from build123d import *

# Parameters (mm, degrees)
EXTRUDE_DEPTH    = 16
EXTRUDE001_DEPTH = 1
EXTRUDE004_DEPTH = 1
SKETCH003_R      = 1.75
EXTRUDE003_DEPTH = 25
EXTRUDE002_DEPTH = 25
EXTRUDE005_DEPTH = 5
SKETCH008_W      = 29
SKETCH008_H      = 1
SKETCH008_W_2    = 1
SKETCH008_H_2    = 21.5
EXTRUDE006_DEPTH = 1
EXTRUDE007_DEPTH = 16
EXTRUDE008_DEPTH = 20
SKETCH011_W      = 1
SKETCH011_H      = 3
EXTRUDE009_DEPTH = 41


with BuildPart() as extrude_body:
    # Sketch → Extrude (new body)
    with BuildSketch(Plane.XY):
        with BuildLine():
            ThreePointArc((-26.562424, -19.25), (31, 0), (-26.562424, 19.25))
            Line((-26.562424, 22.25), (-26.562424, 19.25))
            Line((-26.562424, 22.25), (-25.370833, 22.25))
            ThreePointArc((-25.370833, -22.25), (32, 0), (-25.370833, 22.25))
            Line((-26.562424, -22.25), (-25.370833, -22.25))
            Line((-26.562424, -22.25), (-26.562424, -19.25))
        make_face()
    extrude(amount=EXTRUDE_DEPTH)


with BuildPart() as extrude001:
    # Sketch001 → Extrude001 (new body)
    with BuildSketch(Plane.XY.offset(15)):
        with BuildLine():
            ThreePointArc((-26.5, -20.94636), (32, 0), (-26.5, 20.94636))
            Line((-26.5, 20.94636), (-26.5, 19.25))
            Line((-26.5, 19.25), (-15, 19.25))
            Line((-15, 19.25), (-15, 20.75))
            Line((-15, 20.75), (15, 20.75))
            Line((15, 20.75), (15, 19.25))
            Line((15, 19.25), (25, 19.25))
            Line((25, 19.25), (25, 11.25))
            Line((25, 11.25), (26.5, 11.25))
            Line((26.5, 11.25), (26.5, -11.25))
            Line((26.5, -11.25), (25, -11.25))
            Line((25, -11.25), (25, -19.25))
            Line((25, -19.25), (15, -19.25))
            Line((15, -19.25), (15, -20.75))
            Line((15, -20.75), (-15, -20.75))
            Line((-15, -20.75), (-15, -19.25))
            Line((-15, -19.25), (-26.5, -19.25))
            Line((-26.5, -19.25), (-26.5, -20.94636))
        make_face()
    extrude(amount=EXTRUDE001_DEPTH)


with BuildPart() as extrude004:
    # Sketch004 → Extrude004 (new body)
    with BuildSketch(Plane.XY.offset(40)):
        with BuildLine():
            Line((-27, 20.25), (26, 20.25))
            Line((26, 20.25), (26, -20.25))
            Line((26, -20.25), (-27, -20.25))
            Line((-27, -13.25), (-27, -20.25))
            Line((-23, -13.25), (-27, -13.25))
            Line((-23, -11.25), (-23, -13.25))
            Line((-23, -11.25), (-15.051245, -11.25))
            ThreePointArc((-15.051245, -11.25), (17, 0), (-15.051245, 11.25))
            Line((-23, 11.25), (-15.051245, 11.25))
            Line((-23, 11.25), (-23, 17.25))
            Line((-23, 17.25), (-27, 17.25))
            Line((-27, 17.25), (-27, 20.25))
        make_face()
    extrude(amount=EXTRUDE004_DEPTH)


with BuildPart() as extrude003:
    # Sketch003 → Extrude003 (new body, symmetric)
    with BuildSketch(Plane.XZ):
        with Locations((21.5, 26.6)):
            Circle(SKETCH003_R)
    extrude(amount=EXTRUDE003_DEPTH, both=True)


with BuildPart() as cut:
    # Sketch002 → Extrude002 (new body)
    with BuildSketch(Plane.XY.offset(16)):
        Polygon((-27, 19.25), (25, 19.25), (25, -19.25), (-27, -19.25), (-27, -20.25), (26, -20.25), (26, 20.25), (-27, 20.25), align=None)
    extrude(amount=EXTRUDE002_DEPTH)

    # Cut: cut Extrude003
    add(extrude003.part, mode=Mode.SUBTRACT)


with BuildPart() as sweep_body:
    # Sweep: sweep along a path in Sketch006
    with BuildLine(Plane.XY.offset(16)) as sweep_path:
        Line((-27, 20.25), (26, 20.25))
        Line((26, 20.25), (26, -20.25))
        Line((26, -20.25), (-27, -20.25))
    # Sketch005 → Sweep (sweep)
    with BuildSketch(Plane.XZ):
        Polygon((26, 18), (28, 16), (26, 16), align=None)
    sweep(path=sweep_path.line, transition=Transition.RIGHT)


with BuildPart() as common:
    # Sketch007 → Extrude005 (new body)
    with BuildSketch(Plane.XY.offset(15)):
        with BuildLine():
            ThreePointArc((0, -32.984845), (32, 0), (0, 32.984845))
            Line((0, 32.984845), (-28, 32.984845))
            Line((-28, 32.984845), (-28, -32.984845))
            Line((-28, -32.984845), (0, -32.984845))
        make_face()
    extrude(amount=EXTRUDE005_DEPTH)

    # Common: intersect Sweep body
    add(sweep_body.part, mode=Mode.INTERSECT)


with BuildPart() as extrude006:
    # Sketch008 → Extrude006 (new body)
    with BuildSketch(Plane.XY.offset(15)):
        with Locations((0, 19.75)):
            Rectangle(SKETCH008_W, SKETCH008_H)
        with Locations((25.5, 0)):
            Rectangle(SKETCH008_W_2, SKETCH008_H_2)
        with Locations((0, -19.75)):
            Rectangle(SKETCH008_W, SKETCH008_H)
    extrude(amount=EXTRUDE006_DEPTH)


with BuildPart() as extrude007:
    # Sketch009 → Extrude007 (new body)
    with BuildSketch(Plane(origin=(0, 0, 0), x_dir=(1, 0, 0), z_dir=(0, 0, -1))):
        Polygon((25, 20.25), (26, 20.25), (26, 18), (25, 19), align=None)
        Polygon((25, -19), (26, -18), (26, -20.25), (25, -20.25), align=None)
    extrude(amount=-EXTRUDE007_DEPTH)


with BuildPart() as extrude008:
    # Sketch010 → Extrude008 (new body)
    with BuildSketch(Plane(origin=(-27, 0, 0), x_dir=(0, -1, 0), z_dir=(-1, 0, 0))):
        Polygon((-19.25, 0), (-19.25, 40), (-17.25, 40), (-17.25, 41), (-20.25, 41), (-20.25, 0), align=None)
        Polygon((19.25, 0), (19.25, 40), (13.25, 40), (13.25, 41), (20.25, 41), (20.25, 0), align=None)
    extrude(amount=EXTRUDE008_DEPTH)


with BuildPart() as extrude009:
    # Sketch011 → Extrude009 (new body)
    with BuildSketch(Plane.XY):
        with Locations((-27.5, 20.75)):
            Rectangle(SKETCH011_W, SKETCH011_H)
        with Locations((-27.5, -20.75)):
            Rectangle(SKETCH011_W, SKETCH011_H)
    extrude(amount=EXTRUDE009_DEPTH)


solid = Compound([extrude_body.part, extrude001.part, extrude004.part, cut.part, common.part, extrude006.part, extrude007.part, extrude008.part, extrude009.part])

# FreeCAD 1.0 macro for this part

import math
import FreeCAD as App
import Part
import Sketcher

V = App.Vector

doc = App.newDocument("Part")
params = doc.addObject("Spreadsheet::Sheet", "Params")
for row, (alias, value) in enumerate([
    ("sketch1_radius", "32 mm"),
    ("sketch1_radius2", "33 mm"),
    ("sketch1_height", "3 mm"),
    ("pad1_length", "16 mm"),
    ("sketch2_radius", "33 mm"),
    ("sketch2_width", "30 mm"),
    ("sketch2_width2", "10 mm"),
    ("sketch2_height", "8 mm"),
    ("sketch2_width3", "11.5 mm"),
    ("pad2_length", "1 mm"),
    ("sketch3_radius", "18 mm"),
    ("sketch3_width", "53 mm"),
    ("sketch3_width2", "4 mm"),
    ("sketch3_height", "3 mm"),
    ("sketch3_height2", "6 mm"),
    ("pad3_length", "1 mm"),
    ("sketch4_diameter", "3.5 mm"),
    ("pad4_length", "50 mm"),
    ("sketch5_width", "52 mm"),
    ("sketch5_width2", "53 mm"),
    ("sketch5_height", "1 mm"),
    ("sketch5_height2", "38.5 mm"),
    ("pad5_length", "25 mm"),
    ("sketch6_width", "2 mm"),
    ("sketch7_width", "53 mm"),
    ("sketch7_height", "40.5 mm"),
    ("sketch8_radius", "33 mm"),
    ("sketch8_width", "28 mm"),
    ("pad6_length", "5 mm"),
    ("sketch9_width", "29 mm"),
    ("sketch9_width2", "1 mm"),
    ("sketch9_height", "21.5 mm"),
    ("pad7_length", "1 mm"),
    ("sketch10_width", "1 mm"),
    ("sketch10_height", "1.25 mm"),
    ("pad8_length", "16 mm"),
    ("sketch11_width", "2 mm"),
    ("sketch11_width2", "3 mm"),
    ("sketch11_width3", "7 mm"),
    ("sketch11_height", "40 mm"),
    ("pad9_length", "20 mm"),
    ("sketch12_width", "1 mm"),
    ("sketch12_height", "3 mm"),
    ("pad10_length", "41 mm"),
], start=1):
    params.set(f"A{row}", alias)
    params.set(f"B{row}", "=" + value)
    params.setAlias(f"B{row}", alias)

body = doc.addObject("PartDesign::Body", "Body")

# Sketch on XY plane
sketch1 = body.newObject("Sketcher::SketchObject", "Sketch")
sketch1.AttachmentSupport = (doc.getObject("XY_Plane"), [""])
sketch1.MapMode = "FlatFace"
sketch1.addGeometry(Part.ArcOfCircle(Part.Circle(V(-1, 0, 0), V(0, 0, 1), 32), math.radians(-143), math.radians(143)), False)
sketch1.addGeometry(Part.LineSegment(V(-26.6, -19.2, 0), V(-26.6, -22.2, 0)), False)
sketch1.addGeometry(Part.LineSegment(V(-26.6, -22.2, 0), V(-25.4, -22.2, 0)), False)
sketch1.addGeometry(Part.ArcOfCircle(Part.Circle(V(-1, 0, 0), V(0, 0, 1), 33), math.radians(-138), math.radians(138)), False)
sketch1.addGeometry(Part.LineSegment(V(-25.4, 22.2, 0), V(-26.6, 22.2, 0)), False)
sketch1.addGeometry(Part.LineSegment(V(-26.6, 22.2, 0), V(-26.6, 19.2, 0)), False)
sketch1.addConstraint(Sketcher.Constraint("Coincident", 0, 1, 1, 1))
sketch1.addConstraint(Sketcher.Constraint("Coincident", 1, 2, 2, 1))
sketch1.addConstraint(Sketcher.Constraint("Coincident", 2, 2, 3, 1))
sketch1.addConstraint(Sketcher.Constraint("Coincident", 3, 2, 4, 1))
sketch1.addConstraint(Sketcher.Constraint("Coincident", 4, 2, 5, 1))
sketch1.addConstraint(Sketcher.Constraint("Coincident", 5, 2, 0, 2))
sketch1.addConstraint(Sketcher.Constraint("Vertical", 1))
sketch1.addConstraint(Sketcher.Constraint("Horizontal", 2))
sketch1.addConstraint(Sketcher.Constraint("Horizontal", 4))
sketch1.addConstraint(Sketcher.Constraint("Vertical", 5))
sketch1.addConstraint(Sketcher.Constraint("Coincident", 3, 3, 0, 3))
sketch1.addConstraint(Sketcher.Constraint("Symmetric", 2, 2, 3, 2, -1))
sketch1.addConstraint(Sketcher.Constraint("Vertical", 1, 2, 4, 2))
sketch1.addConstraint(Sketcher.Constraint("Radius", 0, 32.0))
sketch1.addConstraint(Sketcher.Constraint("Radius", 3, 33.0))
sketch1.addConstraint(Sketcher.Constraint("DistanceY", 1, 2, 1, 1, 3.0))
sketch1.addConstraint(Sketcher.Constraint("DistanceX", 0, 3, -1, 1, 1.0))
sketch1.addConstraint(Sketcher.Constraint("DistanceY", 0, 1, 3, 2, 41.5))
sketch1.setExpression("Constraints[13]", "Params.sketch1_radius")
sketch1.setExpression("Constraints[14]", "Params.sketch1_radius2")
sketch1.setExpression("Constraints[15]", "Params.sketch1_height")
pad1 = body.newObject("PartDesign::Pad", "Pad")
pad1.Profile = sketch1
pad1.setExpression("Length", "Params.pad1_length")
body2 = doc.addObject("PartDesign::Body", "Body001")

# Sketch on XY plane
sketch2 = body2.newObject("Sketcher::SketchObject", "Sketch001")
sketch2.AttachmentSupport = (doc.getObject("XY_Plane001"), [""])
sketch2.MapMode = "FlatFace"
sketch2.AttachmentOffset = App.Placement(V(0, 0, 15), App.Rotation())
sketch2.addGeometry(Part.ArcOfCircle(Part.Circle(V(-1, 0, 0), V(0, 0, 1), 33), math.radians(-141), math.radians(141)), False)
sketch2.addGeometry(Part.LineSegment(V(-26.5, 20.9, 0), V(-26.5, 19.2, 0)), False)
sketch2.addGeometry(Part.LineSegment(V(-26.5, 19.2, 0), V(-15, 19.2, 0)), False)
sketch2.addGeometry(Part.LineSegment(V(-15, 19.2, 0), V(-15, 20.8, 0)), False)
sketch2.addGeometry(Part.LineSegment(V(-15, 20.8, 0), V(15, 20.8, 0)), False)
sketch2.addGeometry(Part.LineSegment(V(15, 20.8, 0), V(15, 19.2, 0)), False)
sketch2.addGeometry(Part.LineSegment(V(15, 19.2, 0), V(25, 19.2, 0)), False)
sketch2.addGeometry(Part.LineSegment(V(25, 19.2, 0), V(25, 11.2, 0)), False)
sketch2.addGeometry(Part.LineSegment(V(25, 11.2, 0), V(26.5, 11.2, 0)), False)
sketch2.addGeometry(Part.LineSegment(V(26.5, 11.2, 0), V(26.5, -11.2, 0)), False)
sketch2.addGeometry(Part.LineSegment(V(26.5, -11.2, 0), V(25, -11.2, 0)), False)
sketch2.addGeometry(Part.LineSegment(V(25, -11.2, 0), V(25, -19.2, 0)), False)
sketch2.addGeometry(Part.LineSegment(V(25, -19.2, 0), V(15, -19.2, 0)), False)
sketch2.addGeometry(Part.LineSegment(V(15, -19.2, 0), V(15, -20.8, 0)), False)
sketch2.addGeometry(Part.LineSegment(V(15, -20.8, 0), V(-15, -20.8, 0)), False)
sketch2.addGeometry(Part.LineSegment(V(-15, -20.8, 0), V(-15, -19.2, 0)), False)
sketch2.addGeometry(Part.LineSegment(V(-15, -19.2, 0), V(-26.5, -19.2, 0)), False)
sketch2.addGeometry(Part.LineSegment(V(-26.5, -19.2, 0), V(-26.5, -20.9, 0)), False)
sketch2.addConstraint(Sketcher.Constraint("Coincident", 0, 2, 1, 1))
sketch2.addConstraint(Sketcher.Constraint("Coincident", 1, 2, 2, 1))
sketch2.addConstraint(Sketcher.Constraint("Coincident", 2, 2, 3, 1))
sketch2.addConstraint(Sketcher.Constraint("Coincident", 3, 2, 4, 1))
sketch2.addConstraint(Sketcher.Constraint("Coincident", 4, 2, 5, 1))
sketch2.addConstraint(Sketcher.Constraint("Coincident", 5, 2, 6, 1))
sketch2.addConstraint(Sketcher.Constraint("Coincident", 6, 2, 7, 1))
sketch2.addConstraint(Sketcher.Constraint("Coincident", 7, 2, 8, 1))
sketch2.addConstraint(Sketcher.Constraint("Coincident", 8, 2, 9, 1))
sketch2.addConstraint(Sketcher.Constraint("Coincident", 9, 2, 10, 1))
sketch2.addConstraint(Sketcher.Constraint("Coincident", 10, 2, 11, 1))
sketch2.addConstraint(Sketcher.Constraint("Coincident", 11, 2, 12, 1))
sketch2.addConstraint(Sketcher.Constraint("Coincident", 12, 2, 13, 1))
sketch2.addConstraint(Sketcher.Constraint("Coincident", 13, 2, 14, 1))
sketch2.addConstraint(Sketcher.Constraint("Coincident", 14, 2, 15, 1))
sketch2.addConstraint(Sketcher.Constraint("Coincident", 15, 2, 16, 1))
sketch2.addConstraint(Sketcher.Constraint("Coincident", 16, 2, 17, 1))
sketch2.addConstraint(Sketcher.Constraint("Coincident", 17, 2, 0, 1))
sketch2.addConstraint(Sketcher.Constraint("Vertical", 1))
sketch2.addConstraint(Sketcher.Constraint("Horizontal", 2))
sketch2.addConstraint(Sketcher.Constraint("Vertical", 3))
sketch2.addConstraint(Sketcher.Constraint("Horizontal", 4))
sketch2.addConstraint(Sketcher.Constraint("Vertical", 5))
sketch2.addConstraint(Sketcher.Constraint("Horizontal", 6))
sketch2.addConstraint(Sketcher.Constraint("Vertical", 7))
sketch2.addConstraint(Sketcher.Constraint("Horizontal", 8))
sketch2.addConstraint(Sketcher.Constraint("Vertical", 9))
sketch2.addConstraint(Sketcher.Constraint("Horizontal", 10))
sketch2.addConstraint(Sketcher.Constraint("Vertical", 11))
sketch2.addConstraint(Sketcher.Constraint("Horizontal", 12))
sketch2.addConstraint(Sketcher.Constraint("Vertical", 13))
sketch2.addConstraint(Sketcher.Constraint("Horizontal", 14))
sketch2.addConstraint(Sketcher.Constraint("Vertical", 15))
sketch2.addConstraint(Sketcher.Constraint("Horizontal", 16))
sketch2.addConstraint(Sketcher.Constraint("Vertical", 17))
sketch2.addConstraint(Sketcher.Constraint("Symmetric", 2, 2, 12, 2, -1, 1))
sketch2.addConstraint(Sketcher.Constraint("Symmetric", 4, 2, 14, 2, -1, 1))
sketch2.addConstraint(Sketcher.Constraint("Symmetric", 2, 2, 5, 2, -2))
sketch2.addConstraint(Sketcher.Constraint("Symmetric", 7, 2, 10, 2, -1))
sketch2.addConstraint(Sketcher.Constraint("Symmetric", 1, 2, 16, 2, -1))
sketch2.addConstraint(Sketcher.Constraint("PointOnObject", 0, 3, -1))
sketch2.addConstraint(Sketcher.Constraint("Equal", 10, 3))
sketch2.addConstraint(Sketcher.Constraint("Radius", 0, 33.0))
sketch2.addConstraint(Sketcher.Constraint("DistanceX", 4, 1, 4, 2, 30.0))
sketch2.addConstraint(Sketcher.Constraint("DistanceX", 6, 1, 6, 2, 10.0))
sketch2.addConstraint(Sketcher.Constraint("DistanceY", 7, 2, 7, 1, 8.0))
sketch2.addConstraint(Sketcher.Constraint("DistanceX", 2, 1, 2, 2, 11.5))
sketch2.addConstraint(Sketcher.Constraint("DistanceX", 8, 1, 8, 2, 1.5))
sketch2.addConstraint(Sketcher.Constraint("DistanceY", 9, 2, 9, 1, 22.5))
sketch2.addConstraint(Sketcher.Constraint("DistanceX", 0, 3, -1, 1, 1.0))
sketch2.setExpression("Constraints[42]", "Params.sketch2_radius")
sketch2.setExpression("Constraints[43]", "Params.sketch2_width")
sketch2.setExpression("Constraints[44]", "Params.sketch2_width2")
sketch2.setExpression("Constraints[45]", "Params.sketch2_height")
sketch2.setExpression("Constraints[46]", "Params.sketch2_width3")
pad2 = body2.newObject("PartDesign::Pad", "Pad001")
pad2.Profile = sketch2
pad2.setExpression("Length", "Params.pad2_length")
body3 = doc.addObject("PartDesign::Body", "Body002")

# Sketch on XY plane
sketch3 = body3.newObject("Sketcher::SketchObject", "Sketch002")
sketch3.AttachmentSupport = (doc.getObject("XY_Plane002"), [""])
sketch3.MapMode = "FlatFace"
sketch3.AttachmentOffset = App.Placement(V(0, 0, 40), App.Rotation())
sketch3.addGeometry(Part.LineSegment(V(26, 20.2, 0), V(-27, 20.2, 0)), False)
sketch3.addGeometry(Part.LineSegment(V(-27, 20.2, 0), V(-27, 17.2, 0)), False)
sketch3.addGeometry(Part.LineSegment(V(-27, 17.2, 0), V(-23, 17.2, 0)), False)
sketch3.addGeometry(Part.LineSegment(V(-23, 17.2, 0), V(-23, 11.2, 0)), False)
sketch3.addGeometry(Part.LineSegment(V(-23, 11.2, 0), V(-15.1, 11.2, 0)), False)
sketch3.addGeometry(Part.ArcOfCircle(Part.Circle(V(-1, 0, 0), V(0, 0, 1), 18), math.radians(-141), math.radians(141)), False)
sketch3.addGeometry(Part.LineSegment(V(-15.1, -11.2, 0), V(-23, -11.2, 0)), False)
sketch3.addGeometry(Part.LineSegment(V(-23, -11.2, 0), V(-23, -13.2, 0)), False)
sketch3.addGeometry(Part.LineSegment(V(-23, -13.2, 0), V(-27, -13.2, 0)), False)
sketch3.addGeometry(Part.LineSegment(V(-27, -13.2, 0), V(-27, -20.2, 0)), False)
sketch3.addGeometry(Part.LineSegment(V(-27, -20.2, 0), V(26, -20.2, 0)), False)
sketch3.addGeometry(Part.LineSegment(V(26, -20.2, 0), V(26, 20.2, 0)), False)
sketch3.addConstraint(Sketcher.Constraint("Coincident", 0, 2, 1, 1))
sketch3.addConstraint(Sketcher.Constraint("Coincident", 1, 2, 2, 1))
sketch3.addConstraint(Sketcher.Constraint("Coincident", 2, 2, 3, 1))
sketch3.addConstraint(Sketcher.Constraint("Coincident", 3, 2, 4, 1))
sketch3.addConstraint(Sketcher.Constraint("Coincident", 4, 2, 5, 2))
sketch3.addConstraint(Sketcher.Constraint("Coincident", 5, 1, 6, 1))
sketch3.addConstraint(Sketcher.Constraint("Coincident", 6, 2, 7, 1))
sketch3.addConstraint(Sketcher.Constraint("Coincident", 7, 2, 8, 1))
sketch3.addConstraint(Sketcher.Constraint("Coincident", 8, 2, 9, 1))
sketch3.addConstraint(Sketcher.Constraint("Coincident", 9, 2, 10, 1))
sketch3.addConstraint(Sketcher.Constraint("Coincident", 10, 2, 11, 1))
sketch3.addConstraint(Sketcher.Constraint("Coincident", 11, 2, 0, 1))
sketch3.addConstraint(Sketcher.Constraint("Horizontal", 0))
sketch3.addConstraint(Sketcher.Constraint("Vertical", 1))
sketch3.addConstraint(Sketcher.Constraint("Horizontal", 2))
sketch3.addConstraint(Sketcher.Constraint("Vertical", 3))
sketch3.addConstraint(Sketcher.Constraint("Horizontal", 4))
sketch3.addConstraint(Sketcher.Constraint("Horizontal", 6))
sketch3.addConstraint(Sketcher.Constraint("Vertical", 7))
sketch3.addConstraint(Sketcher.Constraint("Horizontal", 8))
sketch3.addConstraint(Sketcher.Constraint("Vertical", 9))
sketch3.addConstraint(Sketcher.Constraint("Horizontal", 10))
sketch3.addConstraint(Sketcher.Constraint("Vertical", 11))
sketch3.addConstraint(Sketcher.Constraint("Symmetric", 4, 2, 5, 1, -1))
sketch3.addConstraint(Sketcher.Constraint("Symmetric", 0, 2, 9, 2, -1))
sketch3.addConstraint(Sketcher.Constraint("Vertical", 3, 2, 6, 2))
sketch3.addConstraint(Sketcher.Constraint("Radius", 5, 18.0))
sketch3.addConstraint(Sketcher.Constraint("DistanceX", 0, 2, 0, 1, 53.0))
sketch3.addConstraint(Sketcher.Constraint("DistanceX", 2, 1, 2, 2, 4.0))
sketch3.addConstraint(Sketcher.Constraint("DistanceY", 1, 2, 1, 1, 3.0))
sketch3.addConstraint(Sketcher.Constraint("DistanceY", 3, 2, 3, 1, 6.0))
sketch3.addConstraint(Sketcher.Constraint("DistanceY", 7, 2, 7, 1, 2.0))
sketch3.addConstraint(Sketcher.Constraint("DistanceY", 11, 1, 11, 2, 40.5))
sketch3.addConstraint(Sketcher.Constraint("DistanceX", 5, 3, -1, 1, 1.0))
sketch3.addConstraint(Sketcher.Constraint("DistanceX", 0, 2, -1, 1, 27.0))
sketch3.setExpression("Constraints[26]", "Params.sketch3_radius")
sketch3.setExpression("Constraints[27]", "Params.sketch3_width")
sketch3.setExpression("Constraints[28]", "Params.sketch3_width2")
sketch3.setExpression("Constraints[29]", "Params.sketch3_height")
sketch3.setExpression("Constraints[30]", "Params.sketch3_height2")
pad3 = body3.newObject("PartDesign::Pad", "Pad002")
pad3.Profile = sketch3
pad3.setExpression("Length", "Params.pad3_length")
body4 = doc.addObject("PartDesign::Body", "Body003")

# Sketch on XZ plane
sketch4 = body4.newObject("Sketcher::SketchObject", "Sketch003")
sketch4.AttachmentSupport = (doc.getObject("XZ_Plane003"), [""])
sketch4.MapMode = "FlatFace"
sketch4.addGeometry(Part.Circle(V(21.5, 26.6, 0), V(0, 0, 1), 1.8), False)
sketch4.addConstraint(Sketcher.Constraint("Diameter", 0, 3.5))
sketch4.addConstraint(Sketcher.Constraint("DistanceX", -1, 1, 0, 3, 21.5))
sketch4.addConstraint(Sketcher.Constraint("DistanceY", -1, 1, 0, 3, 26.6))
sketch4.setExpression("Constraints[0]", "Params.sketch4_diameter")
pad4 = body4.newObject("PartDesign::Pad", "Pad003")
pad4.Profile = sketch4
pad4.setExpression("Length", "Params.pad4_length")
pad4.Midplane = True
body5 = doc.addObject("PartDesign::Body", "Body004")

# Sketch on XY plane
sketch5 = body5.newObject("Sketcher::SketchObject", "Sketch004")
sketch5.AttachmentSupport = (doc.getObject("XY_Plane004"), [""])
sketch5.MapMode = "FlatFace"
sketch5.AttachmentOffset = App.Placement(V(0, 0, 16), App.Rotation())
sketch5.addGeometry(Part.LineSegment(V(-27, 19.2, 0), V(25, 19.2, 0)), False)
sketch5.addGeometry(Part.LineSegment(V(25, 19.2, 0), V(25, -19.2, 0)), False)
sketch5.addGeometry(Part.LineSegment(V(25, -19.2, 0), V(-27, -19.2, 0)), False)
sketch5.addGeometry(Part.LineSegment(V(-27, -19.2, 0), V(-27, -20.2, 0)), False)
sketch5.addGeometry(Part.LineSegment(V(-27, -20.2, 0), V(26, -20.2, 0)), False)
sketch5.addGeometry(Part.LineSegment(V(26, -20.2, 0), V(26, 20.2, 0)), False)
sketch5.addGeometry(Part.LineSegment(V(26, 20.2, 0), V(-27, 20.2, 0)), False)
sketch5.addGeometry(Part.LineSegment(V(-27, 20.2, 0), V(-27, 19.2, 0)), False)
sketch5.addConstraint(Sketcher.Constraint("Coincident", 0, 2, 1, 1))
sketch5.addConstraint(Sketcher.Constraint("Coincident", 1, 2, 2, 1))
sketch5.addConstraint(Sketcher.Constraint("Coincident", 2, 2, 3, 1))
sketch5.addConstraint(Sketcher.Constraint("Coincident", 3, 2, 4, 1))
sketch5.addConstraint(Sketcher.Constraint("Coincident", 4, 2, 5, 1))
sketch5.addConstraint(Sketcher.Constraint("Coincident", 5, 2, 6, 1))
sketch5.addConstraint(Sketcher.Constraint("Coincident", 6, 2, 7, 1))
sketch5.addConstraint(Sketcher.Constraint("Coincident", 7, 2, 0, 1))
sketch5.addConstraint(Sketcher.Constraint("Horizontal", 0))
sketch5.addConstraint(Sketcher.Constraint("Vertical", 1))
sketch5.addConstraint(Sketcher.Constraint("Horizontal", 2))
sketch5.addConstraint(Sketcher.Constraint("Vertical", 3))
sketch5.addConstraint(Sketcher.Constraint("Horizontal", 4))
sketch5.addConstraint(Sketcher.Constraint("Vertical", 5))
sketch5.addConstraint(Sketcher.Constraint("Horizontal", 6))
sketch5.addConstraint(Sketcher.Constraint("Vertical", 7))
sketch5.addConstraint(Sketcher.Constraint("Symmetric", 3, 2, 6, 2, -1))
sketch5.addConstraint(Sketcher.Constraint("Equal", 3, 7))
sketch5.addConstraint(Sketcher.Constraint("DistanceX", 0, 1, 0, 2, 52.0))
sketch5.addConstraint(Sketcher.Constraint("DistanceX", 4, 1, 4, 2, 53.0))
sketch5.addConstraint(Sketcher.Constraint("DistanceY", 3, 2, 3, 1, 1.0))
sketch5.addConstraint(Sketcher.Constraint("DistanceY", 1, 2, 1, 1, 38.5))
sketch5.addConstraint(Sketcher.Constraint("DistanceX", -1, 1, 0, 2, 25.0))
sketch5.setExpression("Constraints[18]", "Params.sketch5_width")
sketch5.setExpression("Constraints[19]", "Params.sketch5_width2")
sketch5.setExpression("Constraints[20]", "Params.sketch5_height")
sketch5.setExpression("Constraints[21]", "Params.sketch5_height2")
pad5 = body5.newObject("PartDesign::Pad", "Pad004")
pad5.Profile = sketch5
pad5.setExpression("Length", "Params.pad5_length")
doc.recompute()

boolean = body5.newObject("PartDesign::Boolean", "Boolean")
boolean.Type = "Cut"
boolean.addObjects([body4])
body6 = doc.addObject("PartDesign::Body", "Body005")

# Sketch on XZ plane
sketch6 = body6.newObject("Sketcher::SketchObject", "Sketch005")
sketch6.AttachmentSupport = (doc.getObject("XZ_Plane005"), [""])
sketch6.MapMode = "FlatFace"
sketch6.addGeometry(Part.LineSegment(V(28, 16, 0), V(26, 18, 0)), False)
sketch6.addGeometry(Part.LineSegment(V(26, 18, 0), V(26, 16, 0)), False)
sketch6.addGeometry(Part.LineSegment(V(26, 16, 0), V(28, 16, 0)), False)
sketch6.addConstraint(Sketcher.Constraint("Coincident", 0, 2, 1, 1))
sketch6.addConstraint(Sketcher.Constraint("Coincident", 1, 2, 2, 1))
sketch6.addConstraint(Sketcher.Constraint("Coincident", 2, 2, 0, 1))
sketch6.addConstraint(Sketcher.Constraint("Vertical", 1))
sketch6.addConstraint(Sketcher.Constraint("Horizontal", 2))
sketch6.addConstraint(Sketcher.Constraint("Equal", 2, 1))
sketch6.addConstraint(Sketcher.Constraint("DistanceX", 2, 1, 2, 2, 2.0))
sketch6.addConstraint(Sketcher.Constraint("DistanceX", -1, 1, 0, 2, 26.0))
sketch6.addConstraint(Sketcher.Constraint("DistanceY", -1, 1, 0, 2, 18.0))
sketch6.setExpression("Constraints[6]", "Params.sketch6_width")

# Sketch on XY plane
sketch7 = body6.newObject("Sketcher::SketchObject", "Sketch006")
sketch7.AttachmentSupport = (doc.getObject("XY_Plane005"), [""])
sketch7.MapMode = "FlatFace"
sketch7.AttachmentOffset = App.Placement(V(0, 0, 16), App.Rotation())
sketch7.addGeometry(Part.LineSegment(V(-27, 20, 0), V(26, 20, 0)), False)
sketch7.addGeometry(Part.LineSegment(V(26, 20, 0), V(26, -20, 0)), False)
sketch7.addGeometry(Part.LineSegment(V(26, -20, 0), V(-27, -20, 0)), False)
sketch7.addConstraint(Sketcher.Constraint("Coincident", 0, 2, 1, 1))
sketch7.addConstraint(Sketcher.Constraint("Coincident", 1, 2, 2, 1))
sketch7.addConstraint(Sketcher.Constraint("Horizontal", 0))
sketch7.addConstraint(Sketcher.Constraint("Vertical", 1))
sketch7.addConstraint(Sketcher.Constraint("Horizontal", 2))
sketch7.addConstraint(Sketcher.Constraint("Symmetric", 0, 1, 2, 2, -1))
sketch7.addConstraint(Sketcher.Constraint("DistanceX", 0, 1, 0, 2, 53.0))
sketch7.addConstraint(Sketcher.Constraint("DistanceY", 1, 2, 1, 1, 40.5))
sketch7.addConstraint(Sketcher.Constraint("DistanceX", 0, 1, -1, 1, 27.0))
sketch7.setExpression("Constraints[6]", "Params.sketch7_width")
sketch7.setExpression("Constraints[7]", "Params.sketch7_height")
doc.recompute()

additivepipe = body6.newObject("PartDesign::AdditivePipe", "AdditivePipe")
additivepipe.Profile = sketch6
additivepipe.Spine = (sketch7, ["Edge1", "Edge2", "Edge3"])
additivepipe.Transition = "Right corner"
body7 = doc.addObject("PartDesign::Body", "Body006")
body7.AllowCompound = True

# Sketch on XY plane
sketch8 = body7.newObject("Sketcher::SketchObject", "Sketch007")
sketch8.AttachmentSupport = (doc.getObject("XY_Plane006"), [""])
sketch8.MapMode = "FlatFace"
sketch8.AttachmentOffset = App.Placement(V(0, 0, 15), App.Rotation())
sketch8.addGeometry(Part.ArcOfCircle(Part.Circle(V(-1, 0, 0), V(0, 0, 1), 33), math.radians(-88), math.radians(88)), False)
sketch8.addGeometry(Part.LineSegment(V(0, 33, 0), V(-28, 33, 0)), False)
sketch8.addGeometry(Part.LineSegment(V(-28, 33, 0), V(-28, -33, 0)), False)
sketch8.addGeometry(Part.LineSegment(V(-28, -33, 0), V(0, -33, 0)), False)
sketch8.addConstraint(Sketcher.Constraint("Coincident", 0, 2, 1, 1))
sketch8.addConstraint(Sketcher.Constraint("Coincident", 1, 2, 2, 1))
sketch8.addConstraint(Sketcher.Constraint("Coincident", 2, 2, 3, 1))
sketch8.addConstraint(Sketcher.Constraint("Coincident", 3, 2, 0, 1))
sketch8.addConstraint(Sketcher.Constraint("Horizontal", 1))
sketch8.addConstraint(Sketcher.Constraint("Vertical", 2))
sketch8.addConstraint(Sketcher.Constraint("Horizontal", 3))
sketch8.addConstraint(Sketcher.Constraint("Symmetric", 0, 2, 3, 2, -1, 1))
sketch8.addConstraint(Sketcher.Constraint("PointOnObject", 0, 3, -1))
sketch8.addConstraint(Sketcher.Constraint("Radius", 0, 33.0))
sketch8.addConstraint(Sketcher.Constraint("DistanceX", 1, 2, 1, 1, 28.0))
sketch8.addConstraint(Sketcher.Constraint("DistanceX", 0, 3, -1, 1, 1.0))
sketch8.setExpression("Constraints[9]", "Params.sketch8_radius")
sketch8.setExpression("Constraints[10]", "Params.sketch8_width")
pad6 = body7.newObject("PartDesign::Pad", "Pad005")
pad6.Profile = sketch8
pad6.setExpression("Length", "Params.pad6_length")
doc.recompute()

boolean2 = body7.newObject("PartDesign::Boolean", "Boolean001")
boolean2.Type = "Common"
boolean2.addObjects([body6])
body8 = doc.addObject("PartDesign::Body", "Body007")
body8.AllowCompound = True

# Sketch on XY plane
sketch9 = body8.newObject("Sketcher::SketchObject", "Sketch008")
sketch9.AttachmentSupport = (doc.getObject("XY_Plane007"), [""])
sketch9.MapMode = "FlatFace"
sketch9.AttachmentOffset = App.Placement(V(0, 0, 15), App.Rotation())
sketch9.addGeometry(Part.LineSegment(V(-14.5, 20.2, 0), V(-14.5, 19.2, 0)), False)
sketch9.addGeometry(Part.LineSegment(V(-14.5, 19.2, 0), V(14.5, 19.2, 0)), False)
sketch9.addGeometry(Part.LineSegment(V(14.5, 19.2, 0), V(14.5, 20.2, 0)), False)
sketch9.addGeometry(Part.LineSegment(V(14.5, 20.2, 0), V(-14.5, 20.2, 0)), False)
sketch9.addGeometry(Part.LineSegment(V(25, 10.8, 0), V(25, -10.8, 0)), False)
sketch9.addGeometry(Part.LineSegment(V(25, -10.8, 0), V(26, -10.8, 0)), False)
sketch9.addGeometry(Part.LineSegment(V(26, -10.8, 0), V(26, 10.8, 0)), False)
sketch9.addGeometry(Part.LineSegment(V(26, 10.8, 0), V(25, 10.8, 0)), False)
sketch9.addGeometry(Part.LineSegment(V(-14.5, -19.2, 0), V(-14.5, -20.2, 0)), False)
sketch9.addGeometry(Part.LineSegment(V(-14.5, -20.2, 0), V(14.5, -20.2, 0)), False)
sketch9.addGeometry(Part.LineSegment(V(14.5, -20.2, 0), V(14.5, -19.2, 0)), False)
sketch9.addGeometry(Part.LineSegment(V(14.5, -19.2, 0), V(-14.5, -19.2, 0)), False)
sketch9.addConstraint(Sketcher.Constraint("Coincident", 0, 2, 1, 1))
sketch9.addConstraint(Sketcher.Constraint("Coincident", 1, 2, 2, 1))
sketch9.addConstraint(Sketcher.Constraint("Coincident", 2, 2, 3, 1))
sketch9.addConstraint(Sketcher.Constraint("Coincident", 3, 2, 0, 1))
sketch9.addConstraint(Sketcher.Constraint("Coincident", 4, 2, 5, 1))
sketch9.addConstraint(Sketcher.Constraint("Coincident", 5, 2, 6, 1))
sketch9.addConstraint(Sketcher.Constraint("Coincident", 6, 2, 7, 1))
sketch9.addConstraint(Sketcher.Constraint("Coincident", 7, 2, 4, 1))
sketch9.addConstraint(Sketcher.Constraint("Coincident", 8, 2, 9, 1))
sketch9.addConstraint(Sketcher.Constraint("Coincident", 9, 2, 10, 1))
sketch9.addConstraint(Sketcher.Constraint("Coincident", 10, 2, 11, 1))
sketch9.addConstraint(Sketcher.Constraint("Coincident", 11, 2, 8, 1))
sketch9.addConstraint(Sketcher.Constraint("Vertical", 0))
sketch9.addConstraint(Sketcher.Constraint("Horizontal", 1))
sketch9.addConstraint(Sketcher.Constraint("Vertical", 2))
sketch9.addConstraint(Sketcher.Constraint("Horizontal", 3))
sketch9.addConstraint(Sketcher.Constraint("Vertical", 4))
sketch9.addConstraint(Sketcher.Constraint("Horizontal", 5))
sketch9.addConstraint(Sketcher.Constraint("Vertical", 6))
sketch9.addConstraint(Sketcher.Constraint("Horizontal", 7))
sketch9.addConstraint(Sketcher.Constraint("Vertical", 8))
sketch9.addConstraint(Sketcher.Constraint("Horizontal", 9))
sketch9.addConstraint(Sketcher.Constraint("Vertical", 10))
sketch9.addConstraint(Sketcher.Constraint("Horizontal", 11))
sketch9.addConstraint(Sketcher.Constraint("Symmetric", 2, 2, 8, 2, -1, 1))
sketch9.addConstraint(Sketcher.Constraint("Symmetric", 0, 2, 10, 2, -1, 1))
sketch9.addConstraint(Sketcher.Constraint("Vertical", 3, 2, 8, 2))
sketch9.addConstraint(Sketcher.Constraint("Equal", 7, 0))
sketch9.addConstraint(Sketcher.Constraint("DistanceX", 1, 1, 1, 2, 29.0))
sketch9.addConstraint(Sketcher.Constraint("DistanceX", 5, 1, 5, 2, 1.0))
sketch9.addConstraint(Sketcher.Constraint("DistanceY", 4, 2, 4, 1, 21.5))
sketch9.addConstraint(Sketcher.Constraint("DistanceX", -1, 1, 4, 2, 25.0))
sketch9.addConstraint(Sketcher.Constraint("DistanceY", 4, 2, 1, 2, 30.0))
sketch9.addConstraint(Sketcher.Constraint("DistanceY", 9, 2, 7, 2, 31.0))
sketch9.setExpression("Constraints[28]", "Params.sketch9_width")
sketch9.setExpression("Constraints[29]", "Params.sketch9_width2")
sketch9.setExpression("Constraints[30]", "Params.sketch9_height")
pad7 = body8.newObject("PartDesign::Pad", "Pad006")
pad7.Profile = sketch9
pad7.setExpression("Length", "Params.pad7_length")
body9 = doc.addObject("PartDesign::Body", "Body008")
body9.AllowCompound = True

# Sketch on XY plane
sketch10 = body9.newObject("Sketcher::SketchObject", "Sketch009")
sketch10.AttachmentSupport = (doc.getObject("XY_Plane008"), [""])
sketch10.MapMode = "FlatFace"
sketch10.addGeometry(Part.LineSegment(V(26, -20.2, 0), V(25, -20.2, 0)), False)
sketch10.addGeometry(Part.LineSegment(V(25, -20.2, 0), V(25, -19, 0)), False)
sketch10.addGeometry(Part.LineSegment(V(25, -19, 0), V(26, -18, 0)), False)
sketch10.addGeometry(Part.LineSegment(V(26, -18, 0), V(26, -20.2, 0)), False)
sketch10.addGeometry(Part.LineSegment(V(26, 18, 0), V(25, 19, 0)), False)
sketch10.addGeometry(Part.LineSegment(V(25, 19, 0), V(25, 20.2, 0)), False)
sketch10.addGeometry(Part.LineSegment(V(25, 20.2, 0), V(26, 20.2, 0)), False)
sketch10.addGeometry(Part.LineSegment(V(26, 20.2, 0), V(26, 18, 0)), False)
sketch10.addConstraint(Sketcher.Constraint("Coincident", 0, 2, 1, 1))
sketch10.addConstraint(Sketcher.Constraint("Coincident", 1, 2, 2, 1))
sketch10.addConstraint(Sketcher.Constraint("Coincident", 2, 2, 3, 1))
sketch10.addConstraint(Sketcher.Constraint("Coincident", 3, 2, 0, 1))
sketch10.addConstraint(Sketcher.Constraint("Coincident", 4, 2, 5, 1))
sketch10.addConstraint(Sketcher.Constraint("Coincident", 5, 2, 6, 1))
sketch10.addConstraint(Sketcher.Constraint("Coincident", 6, 2, 7, 1))
sketch10.addConstraint(Sketcher.Constraint("Coincident", 7, 2, 4, 1))
sketch10.addConstraint(Sketcher.Constraint("Horizontal", 0))
sketch10.addConstraint(Sketcher.Constraint("Vertical", 1))
sketch10.addConstraint(Sketcher.Constraint("Vertical", 3))
sketch10.addConstraint(Sketcher.Constraint("Vertical", 5))
sketch10.addConstraint(Sketcher.Constraint("Horizontal", 6))
sketch10.addConstraint(Sketcher.Constraint("Vertical", 7))
sketch10.addConstraint(Sketcher.Constraint("Symmetric", 1, 2, 4, 2, -1))
sketch10.addConstraint(Sketcher.Constraint("Symmetric", 3, 2, 6, 2, -1))
sketch10.addConstraint(Sketcher.Constraint("Perpendicular", 2, 4))
sketch10.addConstraint(Sketcher.Constraint("Equal", 3, 7))
sketch10.addConstraint(Sketcher.Constraint("DistanceX", 0, 2, 0, 1, 1.0))
sketch10.addConstraint(Sketcher.Constraint("DistanceX", -1, 1, 0, 2, 25.0))
sketch10.addConstraint(Sketcher.Constraint("DistanceY", 1, 2, -1, 1, 19.0))
sketch10.addConstraint(Sketcher.Constraint("DistanceY", 1, 1, 1, 2, 1.25))
sketch10.setExpression("Constraints[18]", "Params.sketch10_width")
sketch10.setExpression("Constraints[21]", "Params.sketch10_height")
pad8 = body9.newObject("PartDesign::Pad", "Pad007")
pad8.Profile = sketch10
pad8.setExpression("Length", "Params.pad8_length")
body10 = doc.addObject("PartDesign::Body", "Body009")
body10.AllowCompound = True

# Sketch on YZ plane
sketch11 = body10.newObject("Sketcher::SketchObject", "Sketch010")
sketch11.AttachmentSupport = (doc.getObject("YZ_Plane009"), [""])
sketch11.MapMode = "FlatFace"
sketch11.AttachmentOffset = App.Placement(V(0, 0, -27), App.Rotation())
sketch11.addGeometry(Part.LineSegment(V(19.2, 0, 0), V(19.2, 40, 0)), False)
sketch11.addGeometry(Part.LineSegment(V(19.2, 40, 0), V(17.2, 40, 0)), False)
sketch11.addGeometry(Part.LineSegment(V(17.2, 40, 0), V(17.2, 41, 0)), False)
sketch11.addGeometry(Part.LineSegment(V(17.2, 41, 0), V(20.2, 41, 0)), False)
sketch11.addGeometry(Part.LineSegment(V(20.2, 41, 0), V(20.2, 0, 0)), False)
sketch11.addGeometry(Part.LineSegment(V(20.2, 0, 0), V(19.2, 0, 0)), False)
sketch11.addGeometry(Part.LineSegment(V(-19.2, 40, 0), V(-19.2, 0, 0)), False)
sketch11.addGeometry(Part.LineSegment(V(-19.2, 0, 0), V(-20.2, 0, 0)), False)
sketch11.addGeometry(Part.LineSegment(V(-20.2, 0, 0), V(-20.2, 41, 0)), False)
sketch11.addGeometry(Part.LineSegment(V(-20.2, 41, 0), V(-13.2, 41, 0)), False)
sketch11.addGeometry(Part.LineSegment(V(-13.2, 41, 0), V(-13.2, 40, 0)), False)
sketch11.addGeometry(Part.LineSegment(V(-13.2, 40, 0), V(-19.2, 40, 0)), False)
sketch11.addConstraint(Sketcher.Constraint("Coincident", 0, 2, 1, 1))
sketch11.addConstraint(Sketcher.Constraint("Coincident", 1, 2, 2, 1))
sketch11.addConstraint(Sketcher.Constraint("Coincident", 2, 2, 3, 1))
sketch11.addConstraint(Sketcher.Constraint("Coincident", 3, 2, 4, 1))
sketch11.addConstraint(Sketcher.Constraint("Coincident", 4, 2, 5, 1))
sketch11.addConstraint(Sketcher.Constraint("Coincident", 5, 2, 0, 1))
sketch11.addConstraint(Sketcher.Constraint("Coincident", 6, 2, 7, 1))
sketch11.addConstraint(Sketcher.Constraint("Coincident", 7, 2, 8, 1))
sketch11.addConstraint(Sketcher.Constraint("Coincident", 8, 2, 9, 1))
sketch11.addConstraint(Sketcher.Constraint("Coincident", 9, 2, 10, 1))
sketch11.addConstraint(Sketcher.Constraint("Coincident", 10, 2, 11, 1))
sketch11.addConstraint(Sketcher.Constraint("Coincident", 11, 2, 6, 1))
sketch11.addConstraint(Sketcher.Constraint("Vertical", 0))
sketch11.addConstraint(Sketcher.Constraint("Horizontal", 1))
sketch11.addConstraint(Sketcher.Constraint("Vertical", 2))
sketch11.addConstraint(Sketcher.Constraint("Horizontal", 3))
sketch11.addConstraint(Sketcher.Constraint("Vertical", 4))
sketch11.addConstraint(Sketcher.Constraint("Horizontal", 5))
sketch11.addConstraint(Sketcher.Constraint("Vertical", 6))
sketch11.addConstraint(Sketcher.Constraint("Horizontal", 7))
sketch11.addConstraint(Sketcher.Constraint("Vertical", 8))
sketch11.addConstraint(Sketcher.Constraint("Horizontal", 9))
sketch11.addConstraint(Sketcher.Constraint("Vertical", 10))
sketch11.addConstraint(Sketcher.Constraint("Horizontal", 11))
sketch11.addConstraint(Sketcher.Constraint("Symmetric", 5, 2, 6, 2, -1, 1))
sketch11.addConstraint(Sketcher.Constraint("Symmetric", 4, 2, 7, 2, -2))
sketch11.addConstraint(Sketcher.Constraint("Horizontal", 3, 2, 8, 2))
sketch11.addConstraint(Sketcher.Constraint("Horizontal", 1, 2, 10, 2))
sketch11.addConstraint(Sketcher.Constraint("Equal", 7, 2))
sketch11.addConstraint(Sketcher.Constraint("DistanceX", 1, 2, 1, 1, 2.0))
sketch11.addConstraint(Sketcher.Constraint("DistanceX", 3, 1, 3, 2, 3.0))
sketch11.addConstraint(Sketcher.Constraint("DistanceX", 9, 1, 9, 2, 7.0))
sketch11.addConstraint(Sketcher.Constraint("DistanceY", 0, 1, 0, 2, 40.0))
sketch11.addConstraint(Sketcher.Constraint("DistanceX", 6, 2, 5, 2, 38.5))
sketch11.setExpression("Constraints[29]", "Params.sketch11_width")
sketch11.setExpression("Constraints[30]", "Params.sketch11_width2")
sketch11.setExpression("Constraints[31]", "Params.sketch11_width3")
sketch11.setExpression("Constraints[32]", "Params.sketch11_height")
pad9 = body10.newObject("PartDesign::Pad", "Pad008")
pad9.Profile = sketch11
pad9.setExpression("Length", "Params.pad9_length")
pad9.Reversed = True
body11 = doc.addObject("PartDesign::Body", "Body010")
body11.AllowCompound = True

# Sketch on XY plane
sketch12 = body11.newObject("Sketcher::SketchObject", "Sketch011")
sketch12.AttachmentSupport = (doc.getObject("XY_Plane010"), [""])
sketch12.MapMode = "FlatFace"
sketch12.addGeometry(Part.LineSegment(V(-28, 22.2, 0), V(-28, 19.2, 0)), False)
sketch12.addGeometry(Part.LineSegment(V(-28, 19.2, 0), V(-27, 19.2, 0)), False)
sketch12.addGeometry(Part.LineSegment(V(-27, 19.2, 0), V(-27, 22.2, 0)), False)
sketch12.addGeometry(Part.LineSegment(V(-27, 22.2, 0), V(-28, 22.2, 0)), False)
sketch12.addGeometry(Part.LineSegment(V(-28, -19.2, 0), V(-28, -22.2, 0)), False)
sketch12.addGeometry(Part.LineSegment(V(-28, -22.2, 0), V(-27, -22.2, 0)), False)
sketch12.addGeometry(Part.LineSegment(V(-27, -22.2, 0), V(-27, -19.2, 0)), False)
sketch12.addGeometry(Part.LineSegment(V(-27, -19.2, 0), V(-28, -19.2, 0)), False)
sketch12.addConstraint(Sketcher.Constraint("Coincident", 0, 2, 1, 1))
sketch12.addConstraint(Sketcher.Constraint("Coincident", 1, 2, 2, 1))
sketch12.addConstraint(Sketcher.Constraint("Coincident", 2, 2, 3, 1))
sketch12.addConstraint(Sketcher.Constraint("Coincident", 3, 2, 0, 1))
sketch12.addConstraint(Sketcher.Constraint("Coincident", 4, 2, 5, 1))
sketch12.addConstraint(Sketcher.Constraint("Coincident", 5, 2, 6, 1))
sketch12.addConstraint(Sketcher.Constraint("Coincident", 6, 2, 7, 1))
sketch12.addConstraint(Sketcher.Constraint("Coincident", 7, 2, 4, 1))
sketch12.addConstraint(Sketcher.Constraint("Vertical", 0))
sketch12.addConstraint(Sketcher.Constraint("Horizontal", 1))
sketch12.addConstraint(Sketcher.Constraint("Vertical", 2))
sketch12.addConstraint(Sketcher.Constraint("Horizontal", 3))
sketch12.addConstraint(Sketcher.Constraint("Vertical", 4))
sketch12.addConstraint(Sketcher.Constraint("Horizontal", 5))
sketch12.addConstraint(Sketcher.Constraint("Vertical", 6))
sketch12.addConstraint(Sketcher.Constraint("Horizontal", 7))
sketch12.addConstraint(Sketcher.Constraint("Symmetric", 3, 2, 4, 2, -1))
sketch12.addConstraint(Sketcher.Constraint("Symmetric", 1, 2, 6, 2, -1))
sketch12.addConstraint(Sketcher.Constraint("DistanceX", 1, 1, 1, 2, 1.0))
sketch12.addConstraint(Sketcher.Constraint("DistanceY", 0, 2, 0, 1, 3.0))
sketch12.addConstraint(Sketcher.Constraint("DistanceX", 0, 2, -1, 1, 28.0))
sketch12.addConstraint(Sketcher.Constraint("DistanceY", 4, 2, 0, 2, 41.5))
sketch12.setExpression("Constraints[18]", "Params.sketch12_width")
sketch12.setExpression("Constraints[19]", "Params.sketch12_height")
pad10 = body11.newObject("PartDesign::Pad", "Pad009")
pad10.Profile = sketch12
pad10.setExpression("Length", "Params.pad10_length")

doc.recompute()
